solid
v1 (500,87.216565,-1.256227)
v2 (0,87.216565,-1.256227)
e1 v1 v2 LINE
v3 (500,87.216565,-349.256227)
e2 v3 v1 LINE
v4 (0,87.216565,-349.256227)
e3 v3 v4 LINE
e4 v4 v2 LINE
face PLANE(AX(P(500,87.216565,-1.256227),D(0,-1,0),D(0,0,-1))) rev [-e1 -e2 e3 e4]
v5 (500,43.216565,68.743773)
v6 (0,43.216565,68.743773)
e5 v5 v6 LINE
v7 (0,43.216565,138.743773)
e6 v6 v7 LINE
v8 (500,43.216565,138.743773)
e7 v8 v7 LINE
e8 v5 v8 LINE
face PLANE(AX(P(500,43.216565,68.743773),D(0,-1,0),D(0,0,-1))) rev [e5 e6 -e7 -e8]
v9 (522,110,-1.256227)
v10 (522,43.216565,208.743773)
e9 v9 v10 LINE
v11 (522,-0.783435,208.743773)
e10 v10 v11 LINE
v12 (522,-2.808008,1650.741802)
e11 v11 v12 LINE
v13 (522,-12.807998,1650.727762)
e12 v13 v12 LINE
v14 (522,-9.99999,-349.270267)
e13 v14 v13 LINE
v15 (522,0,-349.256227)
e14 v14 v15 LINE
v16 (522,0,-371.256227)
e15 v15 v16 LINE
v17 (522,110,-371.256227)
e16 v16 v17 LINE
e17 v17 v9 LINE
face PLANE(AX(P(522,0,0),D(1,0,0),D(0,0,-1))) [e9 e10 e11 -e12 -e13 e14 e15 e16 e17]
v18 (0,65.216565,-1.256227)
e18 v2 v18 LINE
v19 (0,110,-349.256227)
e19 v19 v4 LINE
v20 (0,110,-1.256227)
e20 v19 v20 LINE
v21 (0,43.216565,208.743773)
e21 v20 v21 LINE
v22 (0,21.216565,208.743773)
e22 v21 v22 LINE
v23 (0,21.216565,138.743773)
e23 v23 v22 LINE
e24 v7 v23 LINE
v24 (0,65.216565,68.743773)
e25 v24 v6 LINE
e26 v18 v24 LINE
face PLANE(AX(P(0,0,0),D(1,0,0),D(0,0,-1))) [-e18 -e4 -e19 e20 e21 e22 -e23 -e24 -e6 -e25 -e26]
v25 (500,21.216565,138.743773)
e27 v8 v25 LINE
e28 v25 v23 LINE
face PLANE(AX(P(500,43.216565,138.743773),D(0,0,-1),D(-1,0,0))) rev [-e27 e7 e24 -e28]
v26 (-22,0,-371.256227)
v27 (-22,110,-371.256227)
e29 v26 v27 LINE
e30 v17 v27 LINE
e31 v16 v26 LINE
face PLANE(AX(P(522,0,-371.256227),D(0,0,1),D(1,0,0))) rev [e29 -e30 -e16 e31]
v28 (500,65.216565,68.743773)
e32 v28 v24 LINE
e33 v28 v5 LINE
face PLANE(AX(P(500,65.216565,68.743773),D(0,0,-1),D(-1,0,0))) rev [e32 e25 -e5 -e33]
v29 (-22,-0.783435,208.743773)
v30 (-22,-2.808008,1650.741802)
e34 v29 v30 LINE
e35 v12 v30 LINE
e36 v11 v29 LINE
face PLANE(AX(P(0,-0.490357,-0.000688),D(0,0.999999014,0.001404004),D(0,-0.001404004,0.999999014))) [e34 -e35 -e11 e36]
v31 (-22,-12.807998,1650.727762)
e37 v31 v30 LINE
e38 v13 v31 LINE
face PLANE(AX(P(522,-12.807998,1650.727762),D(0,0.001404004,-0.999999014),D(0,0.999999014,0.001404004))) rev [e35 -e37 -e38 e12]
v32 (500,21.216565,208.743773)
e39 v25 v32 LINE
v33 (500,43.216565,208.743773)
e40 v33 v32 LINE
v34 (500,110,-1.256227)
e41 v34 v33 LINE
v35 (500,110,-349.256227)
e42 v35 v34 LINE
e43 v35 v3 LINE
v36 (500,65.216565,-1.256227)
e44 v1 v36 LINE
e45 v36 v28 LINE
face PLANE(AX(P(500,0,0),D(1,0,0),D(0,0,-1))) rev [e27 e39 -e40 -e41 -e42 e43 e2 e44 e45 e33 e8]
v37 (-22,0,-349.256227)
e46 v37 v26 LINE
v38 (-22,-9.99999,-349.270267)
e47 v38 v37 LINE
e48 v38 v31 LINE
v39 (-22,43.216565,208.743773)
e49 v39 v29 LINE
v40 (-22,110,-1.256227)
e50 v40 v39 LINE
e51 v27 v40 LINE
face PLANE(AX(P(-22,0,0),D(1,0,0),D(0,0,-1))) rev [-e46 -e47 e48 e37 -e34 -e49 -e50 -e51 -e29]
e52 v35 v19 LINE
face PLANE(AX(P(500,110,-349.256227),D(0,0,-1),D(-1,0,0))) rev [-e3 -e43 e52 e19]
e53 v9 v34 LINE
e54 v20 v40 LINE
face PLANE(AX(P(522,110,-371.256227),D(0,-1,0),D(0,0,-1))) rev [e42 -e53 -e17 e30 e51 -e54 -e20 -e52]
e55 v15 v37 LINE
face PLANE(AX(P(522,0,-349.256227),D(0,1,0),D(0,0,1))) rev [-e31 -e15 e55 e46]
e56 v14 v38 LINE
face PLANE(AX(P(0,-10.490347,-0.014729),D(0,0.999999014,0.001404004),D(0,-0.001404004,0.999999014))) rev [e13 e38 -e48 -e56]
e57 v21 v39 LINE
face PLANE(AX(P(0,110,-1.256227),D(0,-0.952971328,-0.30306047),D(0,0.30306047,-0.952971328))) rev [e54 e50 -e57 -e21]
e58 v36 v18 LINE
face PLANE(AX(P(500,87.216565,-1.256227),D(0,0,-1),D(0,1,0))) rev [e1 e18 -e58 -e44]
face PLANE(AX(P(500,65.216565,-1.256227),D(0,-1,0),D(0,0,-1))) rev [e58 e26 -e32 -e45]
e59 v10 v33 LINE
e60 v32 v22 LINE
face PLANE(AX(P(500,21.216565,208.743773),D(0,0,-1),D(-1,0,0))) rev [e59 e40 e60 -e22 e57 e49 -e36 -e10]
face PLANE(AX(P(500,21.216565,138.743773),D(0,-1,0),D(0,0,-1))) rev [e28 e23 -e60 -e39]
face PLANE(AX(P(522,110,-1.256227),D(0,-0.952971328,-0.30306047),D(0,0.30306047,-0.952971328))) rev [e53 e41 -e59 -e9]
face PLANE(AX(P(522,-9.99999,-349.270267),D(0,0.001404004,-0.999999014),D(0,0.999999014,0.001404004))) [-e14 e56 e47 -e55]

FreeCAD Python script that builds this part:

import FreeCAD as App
import Part
import Sketcher

V = App.Vector
Q = App.Units.Quantity

doc = App.newDocument("Part")
body = doc.addObject("PartDesign::Body", "Body")

# Sketch on YZ plane
sketch1 = body.newObject("Sketcher::SketchObject", "Sketch")
sketch1.AttachmentSupport = (doc.getObject("YZ_Plane"), [""])
sketch1.MapMode = "FlatFace"
sketch1.addGeometry([
    Part.LineSegment(V(87, -349, 0), V(87, -1, 0)),  # 0
    Part.LineSegment(V(87, -1, 0), V(65, -1, 0)),  # 1
    Part.LineSegment(V(65, -1, 0), V(65, 69, 0)),  # 2
    Part.LineSegment(V(65, 69, 0), V(43, 69, 0)),  # 3
    Part.LineSegment(V(43, 69, 0), V(43, 139, 0)),  # 4
    Part.LineSegment(V(43, 139, 0), V(21, 139, 0)),  # 5
    Part.LineSegment(V(21, 139, 0), V(21, 209, 0)),  # 6
    Part.LineSegment(V(21, 209, 0), V(-1, 209, 0)),  # 7
    Part.LineSegment(V(-1, 209, 0), V(0, -349, 0)),  # 8
    Part.LineSegment(V(0, -349, 0), V(87, -349, 0)),  # 9
], False)
sketch1.addConstraint([
    Sketcher.Constraint("Coincident", 0, 2, 1, 1),
    Sketcher.Constraint("Coincident", 1, 2, 2, 1),
    Sketcher.Constraint("Coincident", 2, 2, 3, 1),
    Sketcher.Constraint("Coincident", 3, 2, 4, 1),
    Sketcher.Constraint("Coincident", 4, 2, 5, 1),
    Sketcher.Constraint("Coincident", 5, 2, 6, 1),
    Sketcher.Constraint("Coincident", 6, 2, 7, 1),
    Sketcher.Constraint("Coincident", 7, 2, 8, 1),
    Sketcher.Constraint("Coincident", 8, 2, 9, 1),
    Sketcher.Constraint("Coincident", 9, 2, 0, 1),
    Sketcher.Constraint("Vertical", 0),
    Sketcher.Constraint("Horizontal", 1),
    Sketcher.Constraint("Vertical", 2),
    Sketcher.Constraint("Horizontal", 3),
    Sketcher.Constraint("Vertical", 4),
    Sketcher.Constraint("Horizontal", 5),
    Sketcher.Constraint("Vertical", 6),
    Sketcher.Constraint("Horizontal", 7),
    Sketcher.Constraint("Horizontal", 9),
    Sketcher.Constraint("PointOnObject", 8, 2, -2),
    Sketcher.Constraint("Equal", 1, 3),
    Sketcher.Constraint("Equal", 3, 5),
    Sketcher.Constraint("Equal", 5, 7),
    Sketcher.Constraint("Equal", 2, 4),
    Sketcher.Constraint("Equal", 4, 6),
    Sketcher.Constraint("DistanceX", 1, 2, 1, 1, Q("22 mm")),
    Sketcher.Constraint("DistanceY", 0, 1, 0, 2, Q("348 mm")),
    Sketcher.Constraint("DistanceY", 2, 1, 2, 2, Q("70 mm")),
    Sketcher.Constraint("DistanceX", 9, 1, 9, 2, Q("87.216565 mm")),
    Sketcher.Constraint("DistanceY", 0, 2, -1, 1, Q("1.256227 mm")),
])
pad1 = body.newObject("PartDesign::Pad", "Pad")
pad1.Profile = sketch1
pad1.Length = 500

# Sketch on YZ plane
sketch2 = body.newObject("Sketcher::SketchObject", "Sketch001")
sketch2.AttachmentSupport = (doc.getObject("YZ_Plane"), [""])
sketch2.MapMode = "FlatFace"
sketch2.AttachmentOffset = App.Placement(V(0, 0, 500), App.Rotation())
sketch2.addGeometry([
    Part.LineSegment(V(43, 209, 0), V(-1, 209, 0)),  # 0
    Part.LineSegment(V(-1, 209, 0), V(0, -349, 0)),  # 1
    Part.LineSegment(V(0, -349, 0), V(0, -371, 0)),  # 2
    Part.LineSegment(V(0, -371, 0), V(110, -371, 0)),  # 3
    Part.LineSegment(V(110, -371, 0), V(110, -1, 0)),  # 4
    Part.LineSegment(V(110, -1, 0), V(43, 209, 0)),  # 5
], False)
sketch2.addConstraint([
    Sketcher.Constraint("Coincident", 0, 2, 1, 1),
    Sketcher.Constraint("Coincident", 1, 2, 2, 1),
    Sketcher.Constraint("Coincident", 2, 2, 3, 1),
    Sketcher.Constraint("Coincident", 3, 2, 4, 1),
    Sketcher.Constraint("Coincident", 4, 2, 5, 1),
    Sketcher.Constraint("Coincident", 5, 2, 0, 1),
    Sketcher.Constraint("Horizontal", 0),
    Sketcher.Constraint("Vertical", 2),
    Sketcher.Constraint("Horizontal", 3),
    Sketcher.Constraint("Vertical", 4),
    Sketcher.Constraint("PointOnObject", 1, 2, -2),
    Sketcher.Constraint("DistanceX", 0, 2, 0, 1, Q("44 mm")),
    Sketcher.Constraint("DistanceX", 3, 1, 3, 2, Q("110 mm")),
    Sketcher.Constraint("DistanceY", 2, 2, 2, 1, Q("22 mm")),
    Sketcher.Constraint("DistanceY", 4, 1, 4, 2, Q("370 mm")),
    Sketcher.Constraint("DistanceY", 1, 2, 0, 2, Q("558 mm")),
    Sketcher.Constraint("Distance", 5, Q("220.363398 mm")),
    Sketcher.Constraint("DistanceY", -1, 1, 0, 2, Q("208.743773 mm")),
])
pad2 = body.newObject("PartDesign::Pad", "Pad001")
pad2.Profile = sketch2
pad2.Length = 22
doc.recompute()

linearpattern = body.newObject("PartDesign::LinearPattern", "LinearPattern")
linearpattern.Originals = [pad2]
linearpattern.Direction = (doc.getObject("X_Axis"), [""])
linearpattern.Mode = "offset"
linearpattern.Offset = 522
linearpattern.Occurrences = 2
linearpattern.Reversed = True
body.Tip = linearpattern

# Sketch on YZ plane
sketch3 = body.newObject("Sketcher::SketchObject", "Sketch002")
sketch3.AttachmentSupport = (doc.getObject("YZ_Plane"), [""])
sketch3.MapMode = "FlatFace"
sketch3.addGeometry([
    Part.LineSegment(V(110, -349, 0), V(0, -349, 0)),
    Part.LineSegment(V(0, -349, 0), V(0, -371, 0)),
    Part.LineSegment(V(0, -371, 0), V(110, -371, 0)),
    Part.LineSegment(V(110, -371, 0), V(110, -349, 0)),
], False)
sketch3.addConstraint([
    Sketcher.Constraint("Coincident", 0, 2, 1, 1),
    Sketcher.Constraint("Coincident", 1, 2, 2, 1),
    Sketcher.Constraint("Coincident", 2, 2, 3, 1),
    Sketcher.Constraint("Coincident", 3, 2, 0, 1),
    Sketcher.Constraint("Horizontal", 0),
    Sketcher.Constraint("Vertical", 1),
    Sketcher.Constraint("Horizontal", 2),
    Sketcher.Constraint("Vertical", 3),
    Sketcher.Constraint("PointOnObject", 0, 2, -2),
    Sketcher.Constraint("DistanceX", 0, 2, 0, 1, Q("110 mm")),
    Sketcher.Constraint("DistanceY", 1, 2, 1, 1, Q("22 mm")),
    Sketcher.Constraint("DistanceY", 0, 2, -1, 1, Q("349.256227 mm")),
])
pad3 = body.newObject("PartDesign::Pad", "Pad002")
pad3.Profile = sketch3
pad3.Length = 500

# Sketch on an angled plane
sketch4 = body.newObject("Sketcher::SketchObject", "Sketch003")
sketch4.Placement = App.Placement(V(0, -0.490357, -0.000688), App.Rotation(V(1, 0, 0), V(0, -0.001404004, 0.999999014), V(0, -0.999999014, -0.001404004), "ZXY"))
sketch4.addGeometry([
    Part.LineSegment(V(-22, 1651, 0), V(-22, -349, 0)),
    Part.LineSegment(V(-22, -349, 0), V(522, -349, 0)),
    Part.LineSegment(V(522, -349, 0), V(522, 1651, 0)),
    Part.LineSegment(V(522, 1651, 0), V(-22, 1651, 0)),
], False)
sketch4.addConstraint([
    Sketcher.Constraint("Coincident", 0, 2, 1, 1),
    Sketcher.Constraint("Coincident", 1, 2, 2, 1),
    Sketcher.Constraint("Coincident", 2, 2, 3, 1),
    Sketcher.Constraint("Coincident", 3, 2, 0, 1),
    Sketcher.Constraint("Vertical", 0),
    Sketcher.Constraint("Horizontal", 1),
    Sketcher.Constraint("Vertical", 2),
    Sketcher.Constraint("Horizontal", 3),
    Sketcher.Constraint("DistanceX", 1, 1, 1, 2, Q("544 mm")),
    Sketcher.Constraint("DistanceY", 0, 2, 0, 1, Q("1999.999998 mm")),
    Sketcher.Constraint("DistanceX", 0, 2, -1, 1, Q("22 mm")),
    Sketcher.Constraint("DistanceY", 0, 2, -1, 1, Q("349.255882 mm")),
])
pad4 = body.newObject("PartDesign::Pad", "Pad003")
pad4.Profile = sketch4
pad4.Length = 10

doc.recompute()
